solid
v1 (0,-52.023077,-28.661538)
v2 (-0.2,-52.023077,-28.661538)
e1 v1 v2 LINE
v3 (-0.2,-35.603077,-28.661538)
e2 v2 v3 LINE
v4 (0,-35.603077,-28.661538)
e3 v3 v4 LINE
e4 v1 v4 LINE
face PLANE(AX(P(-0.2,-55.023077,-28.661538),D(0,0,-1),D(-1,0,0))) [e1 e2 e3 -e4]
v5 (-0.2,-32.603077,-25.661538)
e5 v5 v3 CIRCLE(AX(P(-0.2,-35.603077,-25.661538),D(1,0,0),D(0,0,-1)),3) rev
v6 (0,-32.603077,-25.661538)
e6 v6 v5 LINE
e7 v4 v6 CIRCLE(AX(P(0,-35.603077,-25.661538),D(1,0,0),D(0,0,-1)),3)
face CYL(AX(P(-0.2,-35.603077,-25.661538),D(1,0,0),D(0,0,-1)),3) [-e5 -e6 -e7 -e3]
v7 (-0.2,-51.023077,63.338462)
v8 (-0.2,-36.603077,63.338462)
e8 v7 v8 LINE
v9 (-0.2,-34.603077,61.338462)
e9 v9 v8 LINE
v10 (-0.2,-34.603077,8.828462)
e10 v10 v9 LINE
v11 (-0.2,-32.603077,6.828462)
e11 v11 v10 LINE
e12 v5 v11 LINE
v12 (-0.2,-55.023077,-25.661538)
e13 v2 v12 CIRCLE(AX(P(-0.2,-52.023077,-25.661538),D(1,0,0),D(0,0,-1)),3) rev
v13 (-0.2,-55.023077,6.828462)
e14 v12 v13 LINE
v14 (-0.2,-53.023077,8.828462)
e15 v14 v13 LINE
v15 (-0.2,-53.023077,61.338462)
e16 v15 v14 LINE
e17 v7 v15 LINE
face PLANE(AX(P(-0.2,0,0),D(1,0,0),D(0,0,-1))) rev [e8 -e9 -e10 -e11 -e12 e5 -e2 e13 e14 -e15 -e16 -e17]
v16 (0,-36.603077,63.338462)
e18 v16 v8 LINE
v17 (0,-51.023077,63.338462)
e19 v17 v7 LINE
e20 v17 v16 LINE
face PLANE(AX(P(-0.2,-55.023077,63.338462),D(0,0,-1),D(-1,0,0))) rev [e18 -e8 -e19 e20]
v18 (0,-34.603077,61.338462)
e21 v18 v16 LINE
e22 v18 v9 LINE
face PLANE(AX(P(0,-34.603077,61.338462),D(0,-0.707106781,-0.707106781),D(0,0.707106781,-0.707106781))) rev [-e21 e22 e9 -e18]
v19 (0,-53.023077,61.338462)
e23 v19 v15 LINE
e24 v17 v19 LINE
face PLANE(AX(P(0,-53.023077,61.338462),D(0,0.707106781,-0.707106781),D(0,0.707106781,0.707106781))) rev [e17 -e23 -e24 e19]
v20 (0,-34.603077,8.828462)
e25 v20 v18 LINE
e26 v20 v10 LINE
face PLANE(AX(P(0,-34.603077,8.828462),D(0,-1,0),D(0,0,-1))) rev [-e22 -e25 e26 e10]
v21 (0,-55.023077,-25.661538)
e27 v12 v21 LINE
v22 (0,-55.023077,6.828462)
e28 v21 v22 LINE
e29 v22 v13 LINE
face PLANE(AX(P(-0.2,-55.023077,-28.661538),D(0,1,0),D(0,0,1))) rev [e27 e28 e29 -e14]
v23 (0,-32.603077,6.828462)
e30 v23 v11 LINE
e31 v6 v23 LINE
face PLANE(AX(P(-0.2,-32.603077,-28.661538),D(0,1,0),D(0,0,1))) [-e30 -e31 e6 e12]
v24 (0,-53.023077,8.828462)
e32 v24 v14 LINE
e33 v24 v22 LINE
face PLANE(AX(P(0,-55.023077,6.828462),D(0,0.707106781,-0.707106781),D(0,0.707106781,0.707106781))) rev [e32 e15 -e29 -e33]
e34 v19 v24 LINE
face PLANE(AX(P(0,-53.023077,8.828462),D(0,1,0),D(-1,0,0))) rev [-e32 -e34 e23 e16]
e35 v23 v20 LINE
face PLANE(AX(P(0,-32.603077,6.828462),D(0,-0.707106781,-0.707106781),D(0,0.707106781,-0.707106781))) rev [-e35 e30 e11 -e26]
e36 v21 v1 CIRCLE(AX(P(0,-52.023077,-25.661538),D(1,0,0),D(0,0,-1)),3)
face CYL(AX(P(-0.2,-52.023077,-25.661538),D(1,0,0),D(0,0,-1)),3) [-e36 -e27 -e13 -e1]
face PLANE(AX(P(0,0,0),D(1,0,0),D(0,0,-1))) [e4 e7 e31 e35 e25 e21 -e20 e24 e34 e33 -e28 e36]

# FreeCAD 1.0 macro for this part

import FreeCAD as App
import Part
import Sketcher
Q = App.Units.Quantity


def edges_at(feature, points):
    """Names of the edges that pass closest to the given points."""
    edges = feature.Shape.Edges
    near = lambda p: min(range(len(edges)), key=lambda i: edges[i].distToShape(Part.Vertex(*p))[0])
    return sorted({f"Edge{near(p) + 1}" for p in points})


def add_polygon(sketch, points):
    """Adds a closed chain of lines whose ends are joined by coincident constraints."""
    first, n = sketch.GeometryCount, len(points)
    for a, b in zip(points, points[1:] + points[:1]):
        sketch.addGeometry(Part.LineSegment(App.Vector(*a, 0), App.Vector(*b, 0)), False)
    for i in range(n):
        sketch.addConstraint(Sketcher.Constraint("Coincident", first + i, 2, first + (i + 1) % n, 1))

doc = App.newDocument("Part")
body = doc.addObject("PartDesign::Body", "Body")

sketch1 = body.newObject("Sketcher::SketchObject", "Sketch")
sketch1.AttachmentSupport = (doc.getObject("YZ_Plane"), [""])
sketch1.MapMode = "FlatFace"
add_polygon(sketch1, [(-55, -29), (-55, 63), (-33, 63), (-33, -29)])
sketch1.addConstraint([
    Sketcher.Constraint("Vertical", 0),
    Sketcher.Constraint("Horizontal", 1),
    Sketcher.Constraint("Vertical", 2),
    Sketcher.Constraint("Horizontal", 3),
    Sketcher.Constraint("DistanceY", 0, 1, 0, 2, Q("92 mm")),
    Sketcher.Constraint("DistanceX", 1, 1, 1, 2, Q("22.42 mm")),
    Sketcher.Constraint("DistanceY", -1, 1, 0, 2, Q("63.338462 mm")),
    Sketcher.Constraint("DistanceX", 0, 2, -1, 1, Q("55.023077 mm")),
])
pad1 = body.newObject("PartDesign::Pad", "Pad")
pad1.Profile = sketch1
pad1.Length = 0.2
pad1.Reversed = True
doc.recompute()

fillet = body.newObject("PartDesign::Fillet", "Fillet")
fillet.Base = (pad1, edges_at(pad1, [(-0.1, -55.023, -28.662)]))
fillet.Radius = 3
doc.recompute()

fillet2 = body.newObject("PartDesign::Fillet", "Fillet001")
fillet2.Base = (fillet, edges_at(fillet, [(-0.1, -32.603, -28.662)]))
fillet2.Radius = 3

sketch2 = body.newObject("Sketcher::SketchObject", "Sketch001")
sketch2.AttachmentSupport = (doc.getObject("YZ_Plane"), [""])
sketch2.MapMode = "FlatFace"
sketch2.AttachmentOffset = App.Placement(App.Vector(0, 0, -0.2), App.Rotation())
add_polygon(sketch2, [(-55, 8.8), (-55, 63.3), (-53, 63.3), (-53, 8.8)])
sketch2.addConstraint([
    Sketcher.Constraint("Vertical", 0),
    Sketcher.Constraint("Horizontal", 1),
    Sketcher.Constraint("Vertical", 2),
    Sketcher.Constraint("Horizontal", 3),
    Sketcher.Constraint("DistanceX", 1, 1, 1, 2, Q("2 mm")),
    Sketcher.Constraint("DistanceY", 0, 1, 0, 2, Q("54.51 mm")),
    Sketcher.Constraint("DistanceY", -1, 1, 0, 2, Q("63.338462 mm")),
    Sketcher.Constraint("DistanceX", 0, 2, -1, 1, Q("55.023077 mm")),
])
pocket1 = body.newObject("PartDesign::Pocket", "Pocket")
pocket1.Profile = sketch2
pocket1.Length = 0.2
pocket1.Reversed = True

sketch3 = body.newObject("Sketcher::SketchObject", "Sketch002")
sketch3.AttachmentSupport = (doc.getObject("YZ_Plane"), [""])
sketch3.MapMode = "FlatFace"
sketch3.AttachmentOffset = App.Placement(App.Vector(0, 0, -0.2), App.Rotation())
add_polygon(sketch3, [(-34.6, 8.8), (-34.6, 63.3), (-32.6, 63.3), (-32.6, 8.8)])
sketch3.addConstraint([
    Sketcher.Constraint("Vertical", 0),
    Sketcher.Constraint("Horizontal", 1),
    Sketcher.Constraint("Vertical", 2),
    Sketcher.Constraint("Horizontal", 3),
    Sketcher.Constraint("DistanceX", 1, 1, 1, 2, Q("2 mm")),
    Sketcher.Constraint("DistanceY", 0, 1, 0, 2, Q("54.51 mm")),
    Sketcher.Constraint("DistanceY", -1, 1, 0, 2, Q("63.338462 mm")),
    Sketcher.Constraint("DistanceX", 0, 2, -1, 1, Q("34.603077 mm")),
])
pocket2 = body.newObject("PartDesign::Pocket", "Pocket001")
pocket2.Profile = sketch3
pocket2.Length = 0.2
pocket2.Reversed = True

sketch4 = body.newObject("Sketcher::SketchObject", "Sketch003")
sketch4.AttachmentSupport = (doc.getObject("YZ_Plane"), [""])
sketch4.MapMode = "FlatFace"
sketch4.AttachmentOffset = App.Placement(App.Vector(0, 0, -0.2), App.Rotation())
add_polygon(sketch4, [(-53, 61.3), (-53, 63.3), (-51, 63.3)])
sketch4.addConstraint([
    Sketcher.Constraint("Vertical", 0),
    Sketcher.Constraint("Horizontal", 1),
    Sketcher.Constraint("Equal", 1, 0),
    Sketcher.Constraint("DistanceX", 1, 1, 1, 2, Q("2 mm")),
    Sketcher.Constraint("DistanceY", -1, 1, 0, 2, Q("63.338462 mm")),
    Sketcher.Constraint("DistanceX", 0, 2, -1, 1, Q("53.023077 mm")),
])
pocket3 = body.newObject("PartDesign::Pocket", "Pocket002")
pocket3.Profile = sketch4
pocket3.Length = 0.2
pocket3.Reversed = True

sketch5 = body.newObject("Sketcher::SketchObject", "Sketch004")
sketch5.AttachmentSupport = (doc.getObject("YZ_Plane"), [""])
sketch5.MapMode = "FlatFace"
sketch5.AttachmentOffset = App.Placement(App.Vector(0, 0, -0.2), App.Rotation())
add_polygon(sketch5, [(-34.6, 63.3), (-34.6, 61.3), (-36.6, 63.3)])
sketch5.addConstraint([
    Sketcher.Constraint("Vertical", 0),
    Sketcher.Constraint("Horizontal", 2),
    Sketcher.Constraint("Equal", 2, 0),
    Sketcher.Constraint("DistanceX", 2, 1, 2, 2, Q("2 mm")),
    Sketcher.Constraint("DistanceY", -1, 1, 0, 2, Q("61.338462 mm")),
    Sketcher.Constraint("DistanceX", 0, 2, -1, 1, Q("34.603077 mm")),
])
pocket4 = body.newObject("PartDesign::Pocket", "Pocket003")
pocket4.Profile = sketch5
pocket4.Length = 0.2
pocket4.Reversed = True

sketch6 = body.newObject("Sketcher::SketchObject", "Sketch005")
sketch6.AttachmentSupport = (doc.getObject("YZ_Plane"), [""])
sketch6.MapMode = "FlatFace"
sketch6.AttachmentOffset = App.Placement(App.Vector(0, 0, -0.2), App.Rotation())
add_polygon(sketch6, [(-55, 8.8), (-53, 8.8), (-55, 6.8)])
sketch6.addConstraint([
    Sketcher.Constraint("Horizontal", 0),
    Sketcher.Constraint("Vertical", 2),
    Sketcher.Constraint("Equal", 0, 2),
    Sketcher.Constraint("DistanceX", 0, 1, 0, 2, Q("2 mm")),
    Sketcher.Constraint("DistanceY", -1, 1, 0, 2, Q("8.828462 mm")),
    Sketcher.Constraint("DistanceX", 0, 2, -1, 1, Q("53.023077 mm")),
])
pocket5 = body.newObject("PartDesign::Pocket", "Pocket004")
pocket5.Profile = sketch6
pocket5.Length = 0.2
pocket5.Reversed = True

sketch7 = body.newObject("Sketcher::SketchObject", "Sketch006")
sketch7.AttachmentSupport = (doc.getObject("YZ_Plane"), [""])
sketch7.MapMode = "FlatFace"
sketch7.AttachmentOffset = App.Placement(App.Vector(0, 0, -0.2), App.Rotation())
add_polygon(sketch7, [(-34.6, 8.8), (-32.6, 8.8), (-32.6, 6.8)])
sketch7.addConstraint([
    Sketcher.Constraint("Horizontal", 0),
    Sketcher.Constraint("Vertical", 1),
    Sketcher.Constraint("Equal", 0, 1),
    Sketcher.Constraint("DistanceX", 0, 1, 0, 2, Q("2 mm")),
    Sketcher.Constraint("DistanceY", -1, 1, 0, 2, Q("8.828462 mm")),
    Sketcher.Constraint("DistanceX", 0, 2, -1, 1, Q("32.603077 mm")),
])
pocket6 = body.newObject("PartDesign::Pocket", "Pocket005")
pocket6.Profile = sketch7
pocket6.Length = 0.2
pocket6.Reversed = True

doc.recompute()
